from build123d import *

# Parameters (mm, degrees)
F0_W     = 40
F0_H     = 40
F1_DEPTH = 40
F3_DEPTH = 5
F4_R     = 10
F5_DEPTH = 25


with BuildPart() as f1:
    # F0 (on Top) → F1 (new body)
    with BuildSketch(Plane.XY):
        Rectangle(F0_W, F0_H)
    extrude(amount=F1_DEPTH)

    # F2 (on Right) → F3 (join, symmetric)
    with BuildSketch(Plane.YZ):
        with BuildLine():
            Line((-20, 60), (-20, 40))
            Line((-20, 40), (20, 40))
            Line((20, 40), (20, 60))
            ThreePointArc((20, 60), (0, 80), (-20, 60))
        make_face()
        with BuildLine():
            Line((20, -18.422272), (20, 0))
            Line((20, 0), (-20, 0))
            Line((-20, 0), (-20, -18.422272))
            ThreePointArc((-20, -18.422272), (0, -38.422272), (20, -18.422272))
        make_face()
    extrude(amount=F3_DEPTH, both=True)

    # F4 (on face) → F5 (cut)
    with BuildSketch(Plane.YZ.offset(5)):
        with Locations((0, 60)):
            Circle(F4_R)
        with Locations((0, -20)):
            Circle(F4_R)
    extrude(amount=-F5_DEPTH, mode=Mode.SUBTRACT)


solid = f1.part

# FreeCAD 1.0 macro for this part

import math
import FreeCAD as App
import Part
import Sketcher
Q = App.Units.Quantity

doc = App.newDocument("Part")
body = doc.addObject("PartDesign::Body", "Body")

# Sketch on XY plane
sketch1 = doc.addObject("Sketcher::SketchObject", "Sketch")
body.addObject(sketch1)
sketch1.AttachmentSupport = (doc.XY_Plane, [""])
sketch1.MapMode = "FlatFace"
sketch1.addGeometry(Part.LineSegment(App.Vector(-20, 20, 0), App.Vector(-20, -20, 0)), False)
sketch1.addGeometry(Part.LineSegment(App.Vector(-20, -20, 0), App.Vector(20, -20, 0)), False)
sketch1.addGeometry(Part.LineSegment(App.Vector(20, -20, 0), App.Vector(20, 20, 0)), False)
sketch1.addGeometry(Part.LineSegment(App.Vector(20, 20, 0), App.Vector(-20, 20, 0)), False)
sketch1.addConstraint(Sketcher.Constraint("Coincident", 0, 2, 1, 1))
sketch1.addConstraint(Sketcher.Constraint("Coincident", 1, 2, 2, 1))
sketch1.addConstraint(Sketcher.Constraint("Coincident", 2, 2, 3, 1))
sketch1.addConstraint(Sketcher.Constraint("Coincident", 3, 2, 0, 1))
sketch1.addConstraint(Sketcher.Constraint("Vertical", 0))
sketch1.addConstraint(Sketcher.Constraint("Horizontal", 1))
sketch1.addConstraint(Sketcher.Constraint("Vertical", 2))
sketch1.addConstraint(Sketcher.Constraint("Horizontal", 3))
sketch1.addConstraint(Sketcher.Constraint("Symmetric", 0, 2, 2, 2, -1, 1))
sketch1.addConstraint(Sketcher.Constraint("Equal", 3, 0))
sketch1.addConstraint(Sketcher.Constraint("DistanceX", 1, 1, 1, 2, Q("40 mm")))
pad1 = doc.addObject("PartDesign::Pad", "Pad")
body.addObject(pad1)
pad1.Profile = sketch1
pad1.Length = 40

# Sketch on YZ plane
sketch2 = doc.addObject("Sketcher::SketchObject", "Sketch001")
body.addObject(sketch2)
sketch2.AttachmentSupport = (doc.YZ_Plane, [""])
sketch2.MapMode = "FlatFace"
sketch2.addGeometry(Part.LineSegment(App.Vector(-20, 60, 0), App.Vector(-20, 40, 0)), False)
sketch2.addGeometry(Part.LineSegment(App.Vector(-20, 40, 0), App.Vector(20, 40, 0)), False)
sketch2.addGeometry(Part.LineSegment(App.Vector(20, 40, 0), App.Vector(20, 60, 0)), False)
sketch2.addGeometry(Part.ArcOfCircle(Part.Circle(App.Vector(0, 60, 0), App.Vector(0, 0, 1), 20), math.radians(0), math.radians(180)), False)
sketch2.addGeometry(Part.LineSegment(App.Vector(20, -18, 0), App.Vector(20, 0, 0)), False)
sketch2.addGeometry(Part.LineSegment(App.Vector(20, 0, 0), App.Vector(-20, 0, 0)), False)
sketch2.addGeometry(Part.LineSegment(App.Vector(-20, 0, 0), App.Vector(-20, -18, 0)), False)
sketch2.addGeometry(Part.ArcOfCircle(Part.Circle(App.Vector(0, -18, 0), App.Vector(0, 0, 1), 20), math.radians(180), math.radians(360)), False)
sketch2.addConstraint(Sketcher.Constraint("Coincident", 0, 2, 1, 1))
sketch2.addConstraint(Sketcher.Constraint("Coincident", 1, 2, 2, 1))
sketch2.addConstraint(Sketcher.Constraint("Tangent", 2, 2, 3, 1))
sketch2.addConstraint(Sketcher.Constraint("Tangent", 3, 2, 0, 1))
sketch2.addConstraint(Sketcher.Constraint("Coincident", 4, 2, 5, 1))
sketch2.addConstraint(Sketcher.Constraint("Coincident", 5, 2, 6, 1))
sketch2.addConstraint(Sketcher.Constraint("Tangent", 6, 2, 7, 1))
sketch2.addConstraint(Sketcher.Constraint("Tangent", 7, 2, 4, 1))
sketch2.addConstraint(Sketcher.Constraint("Vertical", 0))
sketch2.addConstraint(Sketcher.Constraint("Horizontal", 1))
sketch2.addConstraint(Sketcher.Constraint("Vertical", 2))
sketch2.addConstraint(Sketcher.Constraint("Vertical", 4))
sketch2.addConstraint(Sketcher.Constraint("Horizontal", 5))
sketch2.addConstraint(Sketcher.Constraint("Vertical", 6))
sketch2.addConstraint(Sketcher.Constraint("Equal", 3, 7))
sketch2.addConstraint(Sketcher.Constraint("Symmetric", 4, 2, 5, 2, -1, 1))
sketch2.addConstraint(Sketcher.Constraint("PointOnObject", 3, 3, -2))
sketch2.addConstraint(Sketcher.Constraint("Radius", 3, Q("20 mm")))
sketch2.addConstraint(Sketcher.Constraint("DistanceY", 0, 2, 0, 1, Q("20 mm")))
sketch2.addConstraint(Sketcher.Constraint("DistanceY", -1, 1, 3, 3, Q("60 mm")))
sketch2.addConstraint(Sketcher.Constraint("DistanceY", 4, 1, 4, 2, Q("18.422272 mm")))
pad2 = doc.addObject("PartDesign::Pad", "Pad001")
body.addObject(pad2)
pad2.Profile = sketch2
pad2.Length = 10
pad2.Midplane = True

# Sketch on YZ plane
sketch3 = doc.addObject("Sketcher::SketchObject", "Sketch002")
body.addObject(sketch3)
sketch3.AttachmentSupport = (doc.YZ_Plane, [""])
sketch3.MapMode = "FlatFace"
sketch3.AttachmentOffset = App.Placement(App.Vector(0, 0, 5), App.Rotation())
sketch3.addGeometry(Part.Circle(App.Vector(0, 60, 0), App.Vector(0, 0, 1), 10), False)
sketch3.addGeometry(Part.Circle(App.Vector(0, -20, 0), App.Vector(0, 0, 1), 10), False)
sketch3.addConstraint(Sketcher.Constraint("Equal", 0, 1))
sketch3.addConstraint(Sketcher.Constraint("PointOnObject", 0, 3, -2))
sketch3.addConstraint(Sketcher.Constraint("PointOnObject", 1, 3, -2))
sketch3.addConstraint(Sketcher.Constraint("Diameter", 0, Q("20 mm")))
sketch3.addConstraint(Sketcher.Constraint("DistanceY", -1, 1, 0, 3, Q("60 mm")))
sketch3.addConstraint(Sketcher.Constraint("DistanceY", 1, 3, -1, 1, Q("20 mm")))
pocket1 = doc.addObject("PartDesign::Pocket", "Pocket")
body.addObject(pocket1)
pocket1.Profile = sketch3
pocket1.Length = 25

doc.recompute()
